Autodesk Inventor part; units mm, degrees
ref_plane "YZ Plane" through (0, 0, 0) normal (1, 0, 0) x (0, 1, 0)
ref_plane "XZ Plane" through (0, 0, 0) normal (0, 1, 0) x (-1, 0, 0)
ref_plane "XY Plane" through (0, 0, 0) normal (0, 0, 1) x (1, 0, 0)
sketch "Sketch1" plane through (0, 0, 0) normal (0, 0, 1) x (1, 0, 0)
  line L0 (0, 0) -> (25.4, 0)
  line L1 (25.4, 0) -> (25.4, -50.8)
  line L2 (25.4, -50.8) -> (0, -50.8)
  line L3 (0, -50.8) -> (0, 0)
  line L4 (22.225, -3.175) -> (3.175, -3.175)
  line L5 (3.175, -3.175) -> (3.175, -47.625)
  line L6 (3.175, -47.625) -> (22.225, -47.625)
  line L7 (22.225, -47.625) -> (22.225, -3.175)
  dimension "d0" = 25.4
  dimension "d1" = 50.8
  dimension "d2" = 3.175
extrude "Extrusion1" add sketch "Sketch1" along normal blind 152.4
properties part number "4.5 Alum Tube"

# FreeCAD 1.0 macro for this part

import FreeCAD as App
import Part
import Sketcher

V = App.Vector
Q = App.Units.Quantity


def add_polygon(sketch, points):
    """Adds a closed chain of lines whose ends are joined by coincident constraints."""
    first, n = sketch.GeometryCount, len(points)
    for a, b in zip(points, points[1:] + points[:1]):
        sketch.addGeometry(Part.LineSegment(App.Vector(*a, 0), App.Vector(*b, 0)), False)
    for i in range(n):
        sketch.addConstraint(Sketcher.Constraint("Coincident", first + i, 2, first + (i + 1) % n, 1))

doc = App.newDocument("Part")
body = doc.addObject("PartDesign::Body", "Body")

sketch1 = body.newObject("Sketcher::SketchObject", "Sketch")
sketch1.AttachmentSupport = (doc.getObject("XY_Plane"), [""])
sketch1.MapMode = "FlatFace"
add_polygon(sketch1, [(25, 0), (0, 0), (0, -51), (25, -51)])
add_polygon(sketch1, [(3, -3), (22, -3), (22, -48), (3, -48)])
sketch1.addConstraint([
    Sketcher.Constraint("Horizontal", 0),
    Sketcher.Constraint("Vertical", 1),
    Sketcher.Constraint("Horizontal", 2),
    Sketcher.Constraint("Vertical", 3),
    Sketcher.Constraint("Horizontal", 4),
    Sketcher.Constraint("Vertical", 5),
    Sketcher.Constraint("Horizontal", 6),
    Sketcher.Constraint("Vertical", 7),
    Sketcher.Constraint("Coincident", 0, 2, -1, 1),
    Sketcher.Constraint("DistanceX", 0, 2, 0, 1, Q("1 in")),
    Sketcher.Constraint("DistanceY", 1, 2, 1, 1, Q("2 in")),
    Sketcher.Constraint("DistanceY", 4, 2, -1, 1, Q("0.125 in")),
    Sketcher.Constraint("DistanceX", -1, 1, 6, 2, Q("0.125 in")),
    Sketcher.Constraint("DistanceX", 4, 2, 3, 2, Q("0.125 in")),
    Sketcher.Constraint("DistanceY", 2, 2, 5, 2, Q("0.125 in")),
])
pad1 = body.newObject("PartDesign::Pad", "Pad")
pad1.Profile = sketch1
pad1.Length = Q("6 in")

doc.recompute()
